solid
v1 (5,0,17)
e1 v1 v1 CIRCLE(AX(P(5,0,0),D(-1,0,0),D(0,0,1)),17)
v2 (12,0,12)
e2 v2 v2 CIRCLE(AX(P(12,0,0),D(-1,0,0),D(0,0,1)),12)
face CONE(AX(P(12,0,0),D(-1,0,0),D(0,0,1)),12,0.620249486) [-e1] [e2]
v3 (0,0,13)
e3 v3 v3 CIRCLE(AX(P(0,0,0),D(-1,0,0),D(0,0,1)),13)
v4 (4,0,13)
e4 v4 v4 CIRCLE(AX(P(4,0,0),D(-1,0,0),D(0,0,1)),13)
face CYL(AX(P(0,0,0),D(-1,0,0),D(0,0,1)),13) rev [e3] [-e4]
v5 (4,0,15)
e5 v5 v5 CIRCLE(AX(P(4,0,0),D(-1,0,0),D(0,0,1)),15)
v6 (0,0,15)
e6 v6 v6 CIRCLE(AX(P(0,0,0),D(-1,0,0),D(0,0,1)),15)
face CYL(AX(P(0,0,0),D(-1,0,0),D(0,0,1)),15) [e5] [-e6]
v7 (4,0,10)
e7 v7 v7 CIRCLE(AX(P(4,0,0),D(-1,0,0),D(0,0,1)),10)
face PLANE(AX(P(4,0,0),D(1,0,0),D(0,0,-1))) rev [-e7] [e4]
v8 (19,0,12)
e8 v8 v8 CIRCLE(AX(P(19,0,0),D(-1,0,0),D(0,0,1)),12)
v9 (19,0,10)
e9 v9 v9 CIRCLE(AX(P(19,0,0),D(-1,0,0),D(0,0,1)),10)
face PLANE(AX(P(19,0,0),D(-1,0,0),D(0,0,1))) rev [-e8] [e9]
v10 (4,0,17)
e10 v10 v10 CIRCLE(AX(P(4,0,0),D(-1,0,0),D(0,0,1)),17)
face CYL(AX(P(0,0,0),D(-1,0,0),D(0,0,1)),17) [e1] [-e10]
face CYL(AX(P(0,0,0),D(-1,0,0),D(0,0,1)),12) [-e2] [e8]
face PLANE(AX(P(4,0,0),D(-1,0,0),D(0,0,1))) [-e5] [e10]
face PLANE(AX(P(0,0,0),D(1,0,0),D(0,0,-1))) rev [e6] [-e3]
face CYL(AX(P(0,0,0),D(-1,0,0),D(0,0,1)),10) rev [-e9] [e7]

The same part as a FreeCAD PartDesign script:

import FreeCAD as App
import Part
import Sketcher
from FreeCAD import Vector
Q = App.Units.Quantity

doc = App.newDocument("Part")
body = doc.addObject("PartDesign::Body", "Body")

# Sketch on XY plane
sketch1 = body.newObject("Sketcher::SketchObject", "Sketch")
sketch1.AttachmentSupport = (doc.getObject("XY_Plane"), [""])
sketch1.MapMode = "FlatFace"
sketch1.addGeometry([
    Part.LineSegment(Vector(4, 15, 0), Vector(0, 15, 0)),  # 0
    Part.LineSegment(Vector(0, 15, 0), Vector(0, 13, 0)),  # 1
    Part.LineSegment(Vector(0, 13, 0), Vector(4, 13, 0)),  # 2
    Part.LineSegment(Vector(4, 13, 0), Vector(4, 10, 0)),  # 3
    Part.LineSegment(Vector(4, 10, 0), Vector(19, 10, 0)),  # 4
    Part.LineSegment(Vector(19, 10, 0), Vector(19, 12, 0)),  # 5
    Part.LineSegment(Vector(19, 12, 0), Vector(12, 12, 0)),  # 6
    Part.LineSegment(Vector(12, 12, 0), Vector(5, 17, 0)),  # 7
    Part.LineSegment(Vector(5, 17, 0), Vector(4, 17, 0)),  # 8
    Part.LineSegment(Vector(4, 17, 0), Vector(4, 15, 0)),  # 9
], False)
sketch1.addConstraint([
    Sketcher.Constraint("Coincident", 0, 2, 1, 1),
    Sketcher.Constraint("Coincident", 1, 2, 2, 1),
    Sketcher.Constraint("Coincident", 2, 2, 3, 1),
    Sketcher.Constraint("Coincident", 3, 2, 4, 1),
    Sketcher.Constraint("Coincident", 4, 2, 5, 1),
    Sketcher.Constraint("Coincident", 5, 2, 6, 1),
    Sketcher.Constraint("Coincident", 6, 2, 7, 1),
    Sketcher.Constraint("Coincident", 7, 2, 8, 1),
    Sketcher.Constraint("Coincident", 8, 2, 9, 1),
    Sketcher.Constraint("Coincident", 9, 2, 0, 1),
    Sketcher.Constraint("Horizontal", 0),
    Sketcher.Constraint("Vertical", 1),
    Sketcher.Constraint("Horizontal", 2),
    Sketcher.Constraint("Vertical", 3),
    Sketcher.Constraint("Horizontal", 4),
    Sketcher.Constraint("Vertical", 5),
    Sketcher.Constraint("Horizontal", 6),
    Sketcher.Constraint("Horizontal", 8),
    Sketcher.Constraint("Vertical", 9),
    Sketcher.Constraint("PointOnObject", 0, 2, -2),
    Sketcher.Constraint("Vertical", 3, 2, 8, 2),
    Sketcher.Constraint("Equal", 1, 5),
    Sketcher.Constraint("Equal", 5, 9),
    Sketcher.Constraint("DistanceX", 0, 2, 0, 1, Q("4 mm")),
    Sketcher.Constraint("DistanceX", 4, 1, 4, 2, Q("15 mm")),
    Sketcher.Constraint("DistanceX", 6, 2, 6, 1, Q("7 mm")),
    Sketcher.Constraint("DistanceX", 8, 2, 8, 1, Q("1 mm")),
    Sketcher.Constraint("DistanceY", 1, 2, 1, 1, Q("2 mm")),
    Sketcher.Constraint("DistanceY", 3, 2, 3, 1, Q("3 mm")),
    Sketcher.Constraint("DistanceY", -1, 1, 0, 2, Q("15 mm")),
])
revolution = body.newObject("PartDesign::Revolution", "Revolution")
revolution.Profile = sketch1
revolution.ReferenceAxis = (sketch1, ["H_Axis"])
revolution.Angle = 360

doc.recompute()
